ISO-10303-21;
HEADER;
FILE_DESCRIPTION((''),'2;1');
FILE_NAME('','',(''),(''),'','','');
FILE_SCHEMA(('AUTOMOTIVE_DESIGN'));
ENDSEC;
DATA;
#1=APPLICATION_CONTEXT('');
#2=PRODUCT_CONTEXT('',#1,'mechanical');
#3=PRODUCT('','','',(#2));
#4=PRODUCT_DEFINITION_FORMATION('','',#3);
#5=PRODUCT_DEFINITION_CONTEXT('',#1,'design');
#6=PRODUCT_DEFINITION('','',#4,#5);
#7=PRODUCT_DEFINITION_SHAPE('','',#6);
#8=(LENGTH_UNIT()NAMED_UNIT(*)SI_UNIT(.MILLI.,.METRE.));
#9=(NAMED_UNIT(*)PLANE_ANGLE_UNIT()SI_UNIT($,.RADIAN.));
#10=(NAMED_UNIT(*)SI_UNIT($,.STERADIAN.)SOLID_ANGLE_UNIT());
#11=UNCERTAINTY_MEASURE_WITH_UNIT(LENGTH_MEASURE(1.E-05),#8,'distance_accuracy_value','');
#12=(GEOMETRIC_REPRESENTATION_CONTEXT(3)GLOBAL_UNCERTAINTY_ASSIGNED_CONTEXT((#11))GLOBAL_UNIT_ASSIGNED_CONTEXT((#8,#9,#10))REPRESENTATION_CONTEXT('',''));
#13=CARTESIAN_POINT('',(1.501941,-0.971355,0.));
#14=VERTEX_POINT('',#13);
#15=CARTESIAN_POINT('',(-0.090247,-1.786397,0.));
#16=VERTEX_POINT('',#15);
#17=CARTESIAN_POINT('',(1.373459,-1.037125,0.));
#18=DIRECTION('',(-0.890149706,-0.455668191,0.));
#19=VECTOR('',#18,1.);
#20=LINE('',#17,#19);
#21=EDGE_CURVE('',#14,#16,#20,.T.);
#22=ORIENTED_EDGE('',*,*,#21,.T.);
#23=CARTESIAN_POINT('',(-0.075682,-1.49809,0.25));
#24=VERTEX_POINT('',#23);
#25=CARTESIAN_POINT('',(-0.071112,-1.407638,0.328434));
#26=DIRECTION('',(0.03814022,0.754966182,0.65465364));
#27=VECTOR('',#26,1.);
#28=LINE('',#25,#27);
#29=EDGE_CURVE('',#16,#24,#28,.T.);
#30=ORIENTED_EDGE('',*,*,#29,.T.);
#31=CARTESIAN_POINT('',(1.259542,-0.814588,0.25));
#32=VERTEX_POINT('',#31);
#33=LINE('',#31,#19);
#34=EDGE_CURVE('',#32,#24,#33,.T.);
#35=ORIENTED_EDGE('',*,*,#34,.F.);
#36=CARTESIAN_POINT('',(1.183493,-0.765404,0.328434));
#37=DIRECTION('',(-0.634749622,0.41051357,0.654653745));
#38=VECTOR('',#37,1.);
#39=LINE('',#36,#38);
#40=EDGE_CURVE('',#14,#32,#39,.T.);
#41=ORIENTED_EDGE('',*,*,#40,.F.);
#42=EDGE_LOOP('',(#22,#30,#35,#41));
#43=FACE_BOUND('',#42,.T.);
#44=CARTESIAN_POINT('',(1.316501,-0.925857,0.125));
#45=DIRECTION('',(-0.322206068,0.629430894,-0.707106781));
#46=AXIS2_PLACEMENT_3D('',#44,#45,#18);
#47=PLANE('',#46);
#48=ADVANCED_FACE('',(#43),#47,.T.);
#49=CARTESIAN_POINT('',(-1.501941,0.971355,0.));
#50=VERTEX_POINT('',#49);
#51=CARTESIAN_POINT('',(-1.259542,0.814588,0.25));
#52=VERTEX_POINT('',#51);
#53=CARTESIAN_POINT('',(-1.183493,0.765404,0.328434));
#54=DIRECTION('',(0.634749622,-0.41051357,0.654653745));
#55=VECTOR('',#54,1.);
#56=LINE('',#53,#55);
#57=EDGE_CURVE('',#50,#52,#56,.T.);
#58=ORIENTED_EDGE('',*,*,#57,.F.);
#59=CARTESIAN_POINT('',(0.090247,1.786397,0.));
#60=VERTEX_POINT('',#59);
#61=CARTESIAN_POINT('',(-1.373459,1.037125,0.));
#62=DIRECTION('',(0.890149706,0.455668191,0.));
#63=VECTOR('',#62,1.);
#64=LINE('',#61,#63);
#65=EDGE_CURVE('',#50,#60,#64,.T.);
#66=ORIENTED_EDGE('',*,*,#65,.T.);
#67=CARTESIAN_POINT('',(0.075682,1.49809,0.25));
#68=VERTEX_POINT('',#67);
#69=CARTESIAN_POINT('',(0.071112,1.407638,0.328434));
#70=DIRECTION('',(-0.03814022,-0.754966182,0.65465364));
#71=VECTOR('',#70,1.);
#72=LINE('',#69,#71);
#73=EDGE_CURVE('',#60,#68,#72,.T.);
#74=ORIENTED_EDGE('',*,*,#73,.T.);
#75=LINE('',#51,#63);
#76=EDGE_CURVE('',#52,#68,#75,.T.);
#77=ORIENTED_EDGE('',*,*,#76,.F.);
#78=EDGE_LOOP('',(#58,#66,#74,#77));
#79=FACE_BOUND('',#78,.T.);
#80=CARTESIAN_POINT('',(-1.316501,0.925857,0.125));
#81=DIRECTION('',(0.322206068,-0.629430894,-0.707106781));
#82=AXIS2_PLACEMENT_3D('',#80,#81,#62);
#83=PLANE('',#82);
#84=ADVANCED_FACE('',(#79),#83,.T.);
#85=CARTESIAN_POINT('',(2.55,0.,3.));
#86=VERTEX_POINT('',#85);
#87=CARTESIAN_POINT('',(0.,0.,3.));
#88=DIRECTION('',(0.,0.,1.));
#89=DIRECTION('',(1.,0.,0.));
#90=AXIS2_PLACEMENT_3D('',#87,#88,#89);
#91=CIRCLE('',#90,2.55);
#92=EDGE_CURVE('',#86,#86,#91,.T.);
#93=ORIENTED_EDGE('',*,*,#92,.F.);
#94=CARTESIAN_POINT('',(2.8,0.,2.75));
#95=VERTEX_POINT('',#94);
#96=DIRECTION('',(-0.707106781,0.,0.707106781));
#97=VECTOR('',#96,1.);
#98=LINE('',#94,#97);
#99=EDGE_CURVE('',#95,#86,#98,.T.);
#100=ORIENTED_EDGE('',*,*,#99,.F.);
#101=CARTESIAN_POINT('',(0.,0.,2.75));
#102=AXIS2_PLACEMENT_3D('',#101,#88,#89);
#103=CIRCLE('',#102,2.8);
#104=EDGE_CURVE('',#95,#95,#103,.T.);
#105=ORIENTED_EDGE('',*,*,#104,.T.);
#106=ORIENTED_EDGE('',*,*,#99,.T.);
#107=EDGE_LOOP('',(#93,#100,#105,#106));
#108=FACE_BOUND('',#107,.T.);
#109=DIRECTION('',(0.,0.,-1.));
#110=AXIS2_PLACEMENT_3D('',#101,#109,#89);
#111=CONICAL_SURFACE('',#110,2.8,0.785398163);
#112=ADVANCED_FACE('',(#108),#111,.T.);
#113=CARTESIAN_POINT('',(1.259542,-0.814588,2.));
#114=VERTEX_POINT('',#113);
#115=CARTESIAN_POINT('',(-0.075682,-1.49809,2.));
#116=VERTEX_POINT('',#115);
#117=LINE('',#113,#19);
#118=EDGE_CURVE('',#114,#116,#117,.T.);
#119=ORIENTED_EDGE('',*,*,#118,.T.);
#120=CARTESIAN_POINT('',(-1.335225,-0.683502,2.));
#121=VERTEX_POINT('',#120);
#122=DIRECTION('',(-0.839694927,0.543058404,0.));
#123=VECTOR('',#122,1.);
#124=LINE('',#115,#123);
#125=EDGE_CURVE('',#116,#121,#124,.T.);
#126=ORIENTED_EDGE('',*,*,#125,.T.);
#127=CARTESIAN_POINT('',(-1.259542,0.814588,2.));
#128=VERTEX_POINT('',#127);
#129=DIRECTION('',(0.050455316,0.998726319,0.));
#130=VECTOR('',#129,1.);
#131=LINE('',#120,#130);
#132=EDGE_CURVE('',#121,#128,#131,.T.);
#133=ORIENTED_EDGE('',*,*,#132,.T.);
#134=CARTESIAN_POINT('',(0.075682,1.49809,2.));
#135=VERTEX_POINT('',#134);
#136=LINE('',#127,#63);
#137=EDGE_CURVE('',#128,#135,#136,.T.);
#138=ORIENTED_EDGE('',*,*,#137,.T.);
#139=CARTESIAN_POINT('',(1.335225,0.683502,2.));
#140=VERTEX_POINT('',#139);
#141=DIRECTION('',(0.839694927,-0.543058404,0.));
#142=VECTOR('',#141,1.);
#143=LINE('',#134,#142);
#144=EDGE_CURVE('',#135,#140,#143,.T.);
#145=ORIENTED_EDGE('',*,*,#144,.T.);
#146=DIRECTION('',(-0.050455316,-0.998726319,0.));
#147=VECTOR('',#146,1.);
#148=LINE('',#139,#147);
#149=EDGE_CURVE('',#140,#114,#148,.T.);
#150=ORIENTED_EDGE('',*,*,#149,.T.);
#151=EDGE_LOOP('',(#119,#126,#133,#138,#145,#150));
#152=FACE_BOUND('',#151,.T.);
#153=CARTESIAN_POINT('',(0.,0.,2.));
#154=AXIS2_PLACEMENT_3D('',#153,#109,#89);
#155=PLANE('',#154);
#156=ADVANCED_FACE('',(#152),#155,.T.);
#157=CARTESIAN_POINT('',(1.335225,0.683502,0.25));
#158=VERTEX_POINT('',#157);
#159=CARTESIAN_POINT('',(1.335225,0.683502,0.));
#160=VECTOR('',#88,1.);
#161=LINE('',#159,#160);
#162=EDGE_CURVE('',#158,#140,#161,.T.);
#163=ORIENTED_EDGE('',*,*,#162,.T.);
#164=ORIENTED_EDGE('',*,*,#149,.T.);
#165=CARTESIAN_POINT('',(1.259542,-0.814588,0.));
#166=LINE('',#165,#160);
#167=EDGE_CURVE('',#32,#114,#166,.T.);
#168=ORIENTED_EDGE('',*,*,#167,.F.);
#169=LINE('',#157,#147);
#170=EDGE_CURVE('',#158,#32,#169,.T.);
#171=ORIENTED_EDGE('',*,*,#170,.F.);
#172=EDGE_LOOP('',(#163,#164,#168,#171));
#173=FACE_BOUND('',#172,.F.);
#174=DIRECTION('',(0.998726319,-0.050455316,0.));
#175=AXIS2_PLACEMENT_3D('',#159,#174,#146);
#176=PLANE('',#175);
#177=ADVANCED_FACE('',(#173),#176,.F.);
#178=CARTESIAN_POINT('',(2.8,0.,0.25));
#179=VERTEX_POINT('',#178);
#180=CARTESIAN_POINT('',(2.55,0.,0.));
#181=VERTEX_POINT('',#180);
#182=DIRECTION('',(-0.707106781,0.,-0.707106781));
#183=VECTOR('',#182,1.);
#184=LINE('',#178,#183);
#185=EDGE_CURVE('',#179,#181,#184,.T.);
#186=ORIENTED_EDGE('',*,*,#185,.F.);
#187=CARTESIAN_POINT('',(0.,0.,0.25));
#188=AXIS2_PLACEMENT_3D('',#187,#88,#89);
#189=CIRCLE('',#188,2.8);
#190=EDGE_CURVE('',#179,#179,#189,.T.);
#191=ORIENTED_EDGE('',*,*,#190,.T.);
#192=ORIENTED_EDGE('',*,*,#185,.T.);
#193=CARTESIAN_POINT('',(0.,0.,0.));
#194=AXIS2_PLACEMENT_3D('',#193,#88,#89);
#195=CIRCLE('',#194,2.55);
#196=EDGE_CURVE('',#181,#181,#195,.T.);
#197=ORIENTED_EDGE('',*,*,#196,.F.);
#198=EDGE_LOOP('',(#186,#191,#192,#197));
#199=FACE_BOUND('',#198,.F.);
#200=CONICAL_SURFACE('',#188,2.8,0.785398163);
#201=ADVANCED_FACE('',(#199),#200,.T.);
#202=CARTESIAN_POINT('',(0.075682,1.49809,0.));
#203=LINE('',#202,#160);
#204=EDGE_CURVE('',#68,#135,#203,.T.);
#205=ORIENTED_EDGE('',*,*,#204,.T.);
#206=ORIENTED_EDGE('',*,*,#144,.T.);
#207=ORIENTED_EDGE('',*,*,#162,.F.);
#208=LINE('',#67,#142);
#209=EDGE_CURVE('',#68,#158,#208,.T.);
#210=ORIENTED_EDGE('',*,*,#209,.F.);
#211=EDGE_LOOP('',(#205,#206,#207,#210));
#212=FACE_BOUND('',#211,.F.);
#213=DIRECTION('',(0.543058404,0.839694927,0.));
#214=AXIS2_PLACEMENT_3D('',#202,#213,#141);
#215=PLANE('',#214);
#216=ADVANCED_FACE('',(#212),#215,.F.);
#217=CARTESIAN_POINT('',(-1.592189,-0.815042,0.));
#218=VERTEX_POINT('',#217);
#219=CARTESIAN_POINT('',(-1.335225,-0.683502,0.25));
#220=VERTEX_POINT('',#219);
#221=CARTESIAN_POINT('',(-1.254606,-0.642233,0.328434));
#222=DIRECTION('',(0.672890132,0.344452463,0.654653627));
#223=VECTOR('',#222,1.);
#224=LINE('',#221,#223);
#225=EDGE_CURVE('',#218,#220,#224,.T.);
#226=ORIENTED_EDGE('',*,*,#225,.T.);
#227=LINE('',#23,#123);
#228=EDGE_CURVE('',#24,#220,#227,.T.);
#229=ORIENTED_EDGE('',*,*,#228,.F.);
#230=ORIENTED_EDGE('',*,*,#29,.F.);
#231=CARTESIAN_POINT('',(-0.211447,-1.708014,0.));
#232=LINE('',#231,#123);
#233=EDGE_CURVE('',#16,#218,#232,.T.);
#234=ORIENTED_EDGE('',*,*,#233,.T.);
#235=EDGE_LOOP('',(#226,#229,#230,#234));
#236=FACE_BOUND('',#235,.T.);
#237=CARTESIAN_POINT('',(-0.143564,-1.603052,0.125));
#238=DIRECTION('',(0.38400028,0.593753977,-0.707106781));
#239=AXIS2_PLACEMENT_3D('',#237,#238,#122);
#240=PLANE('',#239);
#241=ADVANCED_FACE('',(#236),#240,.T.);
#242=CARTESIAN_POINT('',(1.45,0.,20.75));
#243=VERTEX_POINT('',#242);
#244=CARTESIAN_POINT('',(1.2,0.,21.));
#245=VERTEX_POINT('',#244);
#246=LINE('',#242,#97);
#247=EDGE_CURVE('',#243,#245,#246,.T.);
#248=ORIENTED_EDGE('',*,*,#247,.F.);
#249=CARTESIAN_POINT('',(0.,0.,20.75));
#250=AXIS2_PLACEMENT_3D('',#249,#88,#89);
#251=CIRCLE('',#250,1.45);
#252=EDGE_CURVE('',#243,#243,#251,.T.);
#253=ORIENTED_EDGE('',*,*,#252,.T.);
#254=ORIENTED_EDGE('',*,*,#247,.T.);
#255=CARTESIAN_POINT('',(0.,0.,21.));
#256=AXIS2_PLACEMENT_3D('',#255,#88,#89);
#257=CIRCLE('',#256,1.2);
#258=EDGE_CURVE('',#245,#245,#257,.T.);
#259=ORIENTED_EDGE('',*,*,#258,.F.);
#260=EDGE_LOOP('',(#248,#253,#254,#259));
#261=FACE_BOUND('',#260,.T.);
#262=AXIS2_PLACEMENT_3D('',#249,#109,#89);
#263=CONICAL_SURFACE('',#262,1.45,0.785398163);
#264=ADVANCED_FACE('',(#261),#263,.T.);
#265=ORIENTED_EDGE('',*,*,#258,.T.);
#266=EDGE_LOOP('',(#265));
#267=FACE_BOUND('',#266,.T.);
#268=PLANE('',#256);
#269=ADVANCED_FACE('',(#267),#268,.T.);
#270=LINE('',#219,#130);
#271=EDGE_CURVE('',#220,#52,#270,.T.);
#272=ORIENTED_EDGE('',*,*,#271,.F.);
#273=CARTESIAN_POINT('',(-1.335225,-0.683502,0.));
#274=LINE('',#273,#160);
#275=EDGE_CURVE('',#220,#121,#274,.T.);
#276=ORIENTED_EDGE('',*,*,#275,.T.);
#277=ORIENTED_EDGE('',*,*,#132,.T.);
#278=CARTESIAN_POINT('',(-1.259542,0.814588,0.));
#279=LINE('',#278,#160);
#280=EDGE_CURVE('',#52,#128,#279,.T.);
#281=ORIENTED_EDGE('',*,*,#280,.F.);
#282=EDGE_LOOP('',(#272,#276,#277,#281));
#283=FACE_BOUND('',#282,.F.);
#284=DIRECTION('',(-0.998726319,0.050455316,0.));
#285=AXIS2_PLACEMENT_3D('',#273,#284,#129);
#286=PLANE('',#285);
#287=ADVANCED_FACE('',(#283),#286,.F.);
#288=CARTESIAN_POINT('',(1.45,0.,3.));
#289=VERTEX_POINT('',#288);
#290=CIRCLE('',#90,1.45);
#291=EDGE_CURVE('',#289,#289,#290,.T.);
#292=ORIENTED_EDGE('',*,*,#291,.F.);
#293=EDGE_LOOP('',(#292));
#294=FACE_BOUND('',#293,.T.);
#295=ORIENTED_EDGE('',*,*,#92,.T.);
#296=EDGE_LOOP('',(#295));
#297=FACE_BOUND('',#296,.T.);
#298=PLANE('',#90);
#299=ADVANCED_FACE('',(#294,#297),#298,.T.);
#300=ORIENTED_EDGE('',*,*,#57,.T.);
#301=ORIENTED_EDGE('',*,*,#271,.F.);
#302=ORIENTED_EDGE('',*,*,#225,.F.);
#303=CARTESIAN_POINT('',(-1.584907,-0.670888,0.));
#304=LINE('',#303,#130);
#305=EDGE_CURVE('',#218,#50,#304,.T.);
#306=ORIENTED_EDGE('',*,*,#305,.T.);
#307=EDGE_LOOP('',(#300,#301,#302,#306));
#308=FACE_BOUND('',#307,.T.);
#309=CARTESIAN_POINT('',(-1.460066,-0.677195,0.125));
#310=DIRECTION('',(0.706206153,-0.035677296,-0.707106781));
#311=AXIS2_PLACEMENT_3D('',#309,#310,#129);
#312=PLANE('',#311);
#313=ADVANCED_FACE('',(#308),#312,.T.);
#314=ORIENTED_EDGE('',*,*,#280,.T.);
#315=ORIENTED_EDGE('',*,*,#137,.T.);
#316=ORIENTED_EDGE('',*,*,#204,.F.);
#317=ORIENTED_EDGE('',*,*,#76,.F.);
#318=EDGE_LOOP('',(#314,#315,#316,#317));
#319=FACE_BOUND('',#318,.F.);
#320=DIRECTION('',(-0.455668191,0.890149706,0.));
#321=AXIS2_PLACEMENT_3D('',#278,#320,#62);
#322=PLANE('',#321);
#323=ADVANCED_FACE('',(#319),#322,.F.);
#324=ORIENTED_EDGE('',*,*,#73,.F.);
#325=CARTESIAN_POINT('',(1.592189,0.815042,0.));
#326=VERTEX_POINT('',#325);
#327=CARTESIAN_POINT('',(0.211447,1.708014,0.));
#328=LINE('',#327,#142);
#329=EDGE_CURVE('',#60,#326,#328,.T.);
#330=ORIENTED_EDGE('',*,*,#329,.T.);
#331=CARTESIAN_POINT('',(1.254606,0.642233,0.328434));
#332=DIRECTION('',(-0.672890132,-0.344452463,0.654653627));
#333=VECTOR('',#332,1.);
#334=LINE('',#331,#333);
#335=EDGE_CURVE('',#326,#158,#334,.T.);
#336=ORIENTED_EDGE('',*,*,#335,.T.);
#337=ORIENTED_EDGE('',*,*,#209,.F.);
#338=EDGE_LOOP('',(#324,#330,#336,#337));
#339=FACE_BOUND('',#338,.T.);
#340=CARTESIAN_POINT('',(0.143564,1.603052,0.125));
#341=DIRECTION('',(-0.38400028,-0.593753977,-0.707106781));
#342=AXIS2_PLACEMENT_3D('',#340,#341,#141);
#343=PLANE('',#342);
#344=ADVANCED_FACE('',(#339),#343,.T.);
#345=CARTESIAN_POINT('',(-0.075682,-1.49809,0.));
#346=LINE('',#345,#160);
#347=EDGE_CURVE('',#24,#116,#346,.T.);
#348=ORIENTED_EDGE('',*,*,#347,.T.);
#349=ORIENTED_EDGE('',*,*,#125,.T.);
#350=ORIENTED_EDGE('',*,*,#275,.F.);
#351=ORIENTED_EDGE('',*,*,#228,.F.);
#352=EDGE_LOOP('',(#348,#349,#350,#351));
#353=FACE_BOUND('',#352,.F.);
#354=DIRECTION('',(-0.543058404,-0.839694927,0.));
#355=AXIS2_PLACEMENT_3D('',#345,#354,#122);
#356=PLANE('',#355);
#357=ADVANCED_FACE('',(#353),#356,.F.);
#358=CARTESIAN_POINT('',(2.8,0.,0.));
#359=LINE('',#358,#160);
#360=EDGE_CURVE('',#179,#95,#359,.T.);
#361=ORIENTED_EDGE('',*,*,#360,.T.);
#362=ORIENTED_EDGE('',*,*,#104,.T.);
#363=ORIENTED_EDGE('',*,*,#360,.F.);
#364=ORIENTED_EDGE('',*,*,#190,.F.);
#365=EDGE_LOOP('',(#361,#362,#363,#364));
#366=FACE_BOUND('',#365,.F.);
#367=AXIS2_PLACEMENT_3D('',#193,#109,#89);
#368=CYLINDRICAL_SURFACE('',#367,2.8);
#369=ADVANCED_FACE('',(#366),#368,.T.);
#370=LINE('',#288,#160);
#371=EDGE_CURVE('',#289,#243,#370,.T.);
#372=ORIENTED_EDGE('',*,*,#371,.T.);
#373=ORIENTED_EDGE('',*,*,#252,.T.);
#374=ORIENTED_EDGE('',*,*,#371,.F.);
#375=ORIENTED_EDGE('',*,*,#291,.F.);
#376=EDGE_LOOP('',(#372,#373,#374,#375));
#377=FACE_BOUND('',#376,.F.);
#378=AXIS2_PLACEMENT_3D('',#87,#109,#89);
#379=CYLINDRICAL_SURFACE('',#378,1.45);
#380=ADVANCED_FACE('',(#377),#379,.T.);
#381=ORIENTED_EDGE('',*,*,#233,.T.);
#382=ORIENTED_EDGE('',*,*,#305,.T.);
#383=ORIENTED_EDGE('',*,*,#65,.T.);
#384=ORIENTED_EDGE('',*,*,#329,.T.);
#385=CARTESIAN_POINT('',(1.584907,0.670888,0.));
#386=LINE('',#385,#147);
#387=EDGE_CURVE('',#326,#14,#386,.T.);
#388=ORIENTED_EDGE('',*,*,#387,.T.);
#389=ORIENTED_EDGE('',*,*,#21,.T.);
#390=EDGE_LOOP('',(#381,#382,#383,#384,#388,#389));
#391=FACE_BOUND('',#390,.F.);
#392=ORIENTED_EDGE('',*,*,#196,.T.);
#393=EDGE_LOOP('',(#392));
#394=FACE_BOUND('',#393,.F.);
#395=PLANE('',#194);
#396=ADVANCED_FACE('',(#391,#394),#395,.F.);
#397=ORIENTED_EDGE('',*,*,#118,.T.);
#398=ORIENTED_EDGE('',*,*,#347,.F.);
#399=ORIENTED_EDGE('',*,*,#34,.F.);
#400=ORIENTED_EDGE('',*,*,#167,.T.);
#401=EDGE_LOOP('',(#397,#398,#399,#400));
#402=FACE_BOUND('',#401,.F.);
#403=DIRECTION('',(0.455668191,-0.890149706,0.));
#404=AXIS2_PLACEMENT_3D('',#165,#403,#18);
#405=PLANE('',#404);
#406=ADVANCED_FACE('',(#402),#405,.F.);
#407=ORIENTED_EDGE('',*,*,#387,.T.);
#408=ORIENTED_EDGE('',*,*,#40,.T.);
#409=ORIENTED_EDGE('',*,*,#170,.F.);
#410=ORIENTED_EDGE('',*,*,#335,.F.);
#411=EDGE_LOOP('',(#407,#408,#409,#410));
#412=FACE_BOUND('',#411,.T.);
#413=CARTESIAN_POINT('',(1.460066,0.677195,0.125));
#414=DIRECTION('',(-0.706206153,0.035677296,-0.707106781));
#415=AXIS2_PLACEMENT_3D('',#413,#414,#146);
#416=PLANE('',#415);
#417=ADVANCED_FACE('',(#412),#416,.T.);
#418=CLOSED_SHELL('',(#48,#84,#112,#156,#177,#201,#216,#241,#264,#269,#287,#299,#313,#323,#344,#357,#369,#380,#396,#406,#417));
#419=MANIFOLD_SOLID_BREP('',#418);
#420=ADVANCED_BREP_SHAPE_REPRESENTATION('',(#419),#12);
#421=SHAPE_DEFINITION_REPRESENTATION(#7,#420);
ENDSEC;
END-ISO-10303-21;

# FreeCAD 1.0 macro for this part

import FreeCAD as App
import Part
import Sketcher
Q = App.Units.Quantity


def edges_at(feature, points):
    """Names of the edges that pass closest to the given points."""
    edges = feature.Shape.Edges
    near = lambda p: min(range(len(edges)), key=lambda i: edges[i].distToShape(Part.Vertex(*p))[0])
    return sorted({f"Edge{near(p) + 1}" for p in points})

doc = App.newDocument("Part")
body = doc.addObject("PartDesign::Body", "Body")

sketch1 = doc.addObject("Sketcher::SketchObject", "Sketch")
body.addObject(sketch1)
sketch1.AttachmentSupport = (doc.XY_Plane, [""])
sketch1.MapMode = "FlatFace"
sketch1.addGeometry(Part.Circle(App.Vector(0, 0, 0), App.Vector(0, 0, 1), 2.8), False)
sketch1.addConstraint(Sketcher.Constraint("Coincident", 0, 3, -1, 1))
sketch1.addConstraint(Sketcher.Constraint("Diameter", 0, Q("5.6 mm")))
pad1 = doc.addObject("PartDesign::Pad", "Pad")
body.addObject(pad1)
pad1.Profile = sketch1
pad1.Length = 3

sketch2 = doc.addObject("Sketcher::SketchObject", "Sketch001")
body.addObject(sketch2)
sketch2.AttachmentSupport = (doc.XY_Plane, [""])
sketch2.MapMode = "FlatFace"
sketch2.AttachmentOffset = App.Placement(App.Vector(0, 0, 3), App.Rotation())
sketch2.addGeometry(Part.Circle(App.Vector(0, 0, 0), App.Vector(0, 0, 1), 1.4), False)
sketch2.addConstraint(Sketcher.Constraint("Coincident", 0, 3, -1, 1))
sketch2.addConstraint(Sketcher.Constraint("Diameter", 0, Q("2.9 mm")))
pad2 = doc.addObject("PartDesign::Pad", "Pad001")
body.addObject(pad2)
pad2.Profile = sketch2
pad2.Length = 18

sketch3 = doc.addObject("Sketcher::SketchObject", "Sketch002")
body.addObject(sketch3)
sketch3.AttachmentSupport = (doc.XY_Plane, [""])
sketch3.MapMode = "FlatFace"
sketch3.addGeometry(Part.LineSegment(App.Vector(1.3, -0.8, 0), App.Vector(-0.1, -1.5, 0)), False)
sketch3.addGeometry(Part.LineSegment(App.Vector(-0.1, -1.5, 0), App.Vector(-1.3, -0.7, 0)), False)
sketch3.addGeometry(Part.LineSegment(App.Vector(-1.3, -0.7, 0), App.Vector(-1.3, 0.8, 0)), False)
sketch3.addGeometry(Part.LineSegment(App.Vector(-1.3, 0.8, 0), App.Vector(0.1, 1.5, 0)), False)
sketch3.addGeometry(Part.LineSegment(App.Vector(0.1, 1.5, 0), App.Vector(1.3, 0.7, 0)), False)
sketch3.addGeometry(Part.LineSegment(App.Vector(1.3, 0.7, 0), App.Vector(1.3, -0.8, 0)), False)
sketch3.addConstraint(Sketcher.Constraint("Coincident", 0, 2, 1, 1))
sketch3.addConstraint(Sketcher.Constraint("Coincident", 1, 2, 2, 1))
sketch3.addConstraint(Sketcher.Constraint("Coincident", 2, 2, 3, 1))
sketch3.addConstraint(Sketcher.Constraint("Coincident", 3, 2, 4, 1))
sketch3.addConstraint(Sketcher.Constraint("Coincident", 4, 2, 5, 1))
sketch3.addConstraint(Sketcher.Constraint("Coincident", 5, 2, 0, 1))
sketch3.addConstraint(Sketcher.Constraint("Symmetric", 0, 2, 3, 2, -1, 1))
sketch3.addConstraint(Sketcher.Constraint("Symmetric", 1, 2, 4, 2, -1, 1))
sketch3.addConstraint(Sketcher.Constraint("Symmetric", 2, 2, 5, 2, -1, 1))
sketch3.addConstraint(Sketcher.Constraint("Equal", 0, 1))
sketch3.addConstraint(Sketcher.Constraint("Equal", 1, 2))
sketch3.addConstraint(Sketcher.Constraint("Distance", 0, Q("1.499999 mm")))
sketch3.addConstraint(Sketcher.Constraint("DistanceY", 2, 2, 3, 2, Q("0.683502 mm")))
sketch3.addConstraint(Sketcher.Constraint("DistanceY", 0, 2, -1, 1, Q("1.49809 mm")))
sketch3.addConstraint(Sketcher.Constraint("DistanceX", 2, 2, -1, 1, Q("1.259542 mm")))
pocket1 = doc.addObject("PartDesign::Pocket", "Pocket")
body.addObject(pocket1)
pocket1.Profile = sketch3
pocket1.Length = 2
pocket1.Reversed = True
doc.recompute()

chamfer = doc.addObject("PartDesign::Chamfer", "Chamfer")
body.addObject(chamfer)
chamfer.Base = (pocket1, edges_at(pocket1, [
    (-2.8, 0, 3),
    (-2.8, 0, 0),
    (1.297, -0.066, 0),
    (0.705, 1.091, 0),
    (-0.592, 1.156, 0),
    (-1.297, 0.066, 0),
    (-0.705, -1.091, 0),
    (0.592, -1.156, 0),
    (-1.45, 0, 21),
]))
chamfer.Size = 0.25

doc.recompute()
